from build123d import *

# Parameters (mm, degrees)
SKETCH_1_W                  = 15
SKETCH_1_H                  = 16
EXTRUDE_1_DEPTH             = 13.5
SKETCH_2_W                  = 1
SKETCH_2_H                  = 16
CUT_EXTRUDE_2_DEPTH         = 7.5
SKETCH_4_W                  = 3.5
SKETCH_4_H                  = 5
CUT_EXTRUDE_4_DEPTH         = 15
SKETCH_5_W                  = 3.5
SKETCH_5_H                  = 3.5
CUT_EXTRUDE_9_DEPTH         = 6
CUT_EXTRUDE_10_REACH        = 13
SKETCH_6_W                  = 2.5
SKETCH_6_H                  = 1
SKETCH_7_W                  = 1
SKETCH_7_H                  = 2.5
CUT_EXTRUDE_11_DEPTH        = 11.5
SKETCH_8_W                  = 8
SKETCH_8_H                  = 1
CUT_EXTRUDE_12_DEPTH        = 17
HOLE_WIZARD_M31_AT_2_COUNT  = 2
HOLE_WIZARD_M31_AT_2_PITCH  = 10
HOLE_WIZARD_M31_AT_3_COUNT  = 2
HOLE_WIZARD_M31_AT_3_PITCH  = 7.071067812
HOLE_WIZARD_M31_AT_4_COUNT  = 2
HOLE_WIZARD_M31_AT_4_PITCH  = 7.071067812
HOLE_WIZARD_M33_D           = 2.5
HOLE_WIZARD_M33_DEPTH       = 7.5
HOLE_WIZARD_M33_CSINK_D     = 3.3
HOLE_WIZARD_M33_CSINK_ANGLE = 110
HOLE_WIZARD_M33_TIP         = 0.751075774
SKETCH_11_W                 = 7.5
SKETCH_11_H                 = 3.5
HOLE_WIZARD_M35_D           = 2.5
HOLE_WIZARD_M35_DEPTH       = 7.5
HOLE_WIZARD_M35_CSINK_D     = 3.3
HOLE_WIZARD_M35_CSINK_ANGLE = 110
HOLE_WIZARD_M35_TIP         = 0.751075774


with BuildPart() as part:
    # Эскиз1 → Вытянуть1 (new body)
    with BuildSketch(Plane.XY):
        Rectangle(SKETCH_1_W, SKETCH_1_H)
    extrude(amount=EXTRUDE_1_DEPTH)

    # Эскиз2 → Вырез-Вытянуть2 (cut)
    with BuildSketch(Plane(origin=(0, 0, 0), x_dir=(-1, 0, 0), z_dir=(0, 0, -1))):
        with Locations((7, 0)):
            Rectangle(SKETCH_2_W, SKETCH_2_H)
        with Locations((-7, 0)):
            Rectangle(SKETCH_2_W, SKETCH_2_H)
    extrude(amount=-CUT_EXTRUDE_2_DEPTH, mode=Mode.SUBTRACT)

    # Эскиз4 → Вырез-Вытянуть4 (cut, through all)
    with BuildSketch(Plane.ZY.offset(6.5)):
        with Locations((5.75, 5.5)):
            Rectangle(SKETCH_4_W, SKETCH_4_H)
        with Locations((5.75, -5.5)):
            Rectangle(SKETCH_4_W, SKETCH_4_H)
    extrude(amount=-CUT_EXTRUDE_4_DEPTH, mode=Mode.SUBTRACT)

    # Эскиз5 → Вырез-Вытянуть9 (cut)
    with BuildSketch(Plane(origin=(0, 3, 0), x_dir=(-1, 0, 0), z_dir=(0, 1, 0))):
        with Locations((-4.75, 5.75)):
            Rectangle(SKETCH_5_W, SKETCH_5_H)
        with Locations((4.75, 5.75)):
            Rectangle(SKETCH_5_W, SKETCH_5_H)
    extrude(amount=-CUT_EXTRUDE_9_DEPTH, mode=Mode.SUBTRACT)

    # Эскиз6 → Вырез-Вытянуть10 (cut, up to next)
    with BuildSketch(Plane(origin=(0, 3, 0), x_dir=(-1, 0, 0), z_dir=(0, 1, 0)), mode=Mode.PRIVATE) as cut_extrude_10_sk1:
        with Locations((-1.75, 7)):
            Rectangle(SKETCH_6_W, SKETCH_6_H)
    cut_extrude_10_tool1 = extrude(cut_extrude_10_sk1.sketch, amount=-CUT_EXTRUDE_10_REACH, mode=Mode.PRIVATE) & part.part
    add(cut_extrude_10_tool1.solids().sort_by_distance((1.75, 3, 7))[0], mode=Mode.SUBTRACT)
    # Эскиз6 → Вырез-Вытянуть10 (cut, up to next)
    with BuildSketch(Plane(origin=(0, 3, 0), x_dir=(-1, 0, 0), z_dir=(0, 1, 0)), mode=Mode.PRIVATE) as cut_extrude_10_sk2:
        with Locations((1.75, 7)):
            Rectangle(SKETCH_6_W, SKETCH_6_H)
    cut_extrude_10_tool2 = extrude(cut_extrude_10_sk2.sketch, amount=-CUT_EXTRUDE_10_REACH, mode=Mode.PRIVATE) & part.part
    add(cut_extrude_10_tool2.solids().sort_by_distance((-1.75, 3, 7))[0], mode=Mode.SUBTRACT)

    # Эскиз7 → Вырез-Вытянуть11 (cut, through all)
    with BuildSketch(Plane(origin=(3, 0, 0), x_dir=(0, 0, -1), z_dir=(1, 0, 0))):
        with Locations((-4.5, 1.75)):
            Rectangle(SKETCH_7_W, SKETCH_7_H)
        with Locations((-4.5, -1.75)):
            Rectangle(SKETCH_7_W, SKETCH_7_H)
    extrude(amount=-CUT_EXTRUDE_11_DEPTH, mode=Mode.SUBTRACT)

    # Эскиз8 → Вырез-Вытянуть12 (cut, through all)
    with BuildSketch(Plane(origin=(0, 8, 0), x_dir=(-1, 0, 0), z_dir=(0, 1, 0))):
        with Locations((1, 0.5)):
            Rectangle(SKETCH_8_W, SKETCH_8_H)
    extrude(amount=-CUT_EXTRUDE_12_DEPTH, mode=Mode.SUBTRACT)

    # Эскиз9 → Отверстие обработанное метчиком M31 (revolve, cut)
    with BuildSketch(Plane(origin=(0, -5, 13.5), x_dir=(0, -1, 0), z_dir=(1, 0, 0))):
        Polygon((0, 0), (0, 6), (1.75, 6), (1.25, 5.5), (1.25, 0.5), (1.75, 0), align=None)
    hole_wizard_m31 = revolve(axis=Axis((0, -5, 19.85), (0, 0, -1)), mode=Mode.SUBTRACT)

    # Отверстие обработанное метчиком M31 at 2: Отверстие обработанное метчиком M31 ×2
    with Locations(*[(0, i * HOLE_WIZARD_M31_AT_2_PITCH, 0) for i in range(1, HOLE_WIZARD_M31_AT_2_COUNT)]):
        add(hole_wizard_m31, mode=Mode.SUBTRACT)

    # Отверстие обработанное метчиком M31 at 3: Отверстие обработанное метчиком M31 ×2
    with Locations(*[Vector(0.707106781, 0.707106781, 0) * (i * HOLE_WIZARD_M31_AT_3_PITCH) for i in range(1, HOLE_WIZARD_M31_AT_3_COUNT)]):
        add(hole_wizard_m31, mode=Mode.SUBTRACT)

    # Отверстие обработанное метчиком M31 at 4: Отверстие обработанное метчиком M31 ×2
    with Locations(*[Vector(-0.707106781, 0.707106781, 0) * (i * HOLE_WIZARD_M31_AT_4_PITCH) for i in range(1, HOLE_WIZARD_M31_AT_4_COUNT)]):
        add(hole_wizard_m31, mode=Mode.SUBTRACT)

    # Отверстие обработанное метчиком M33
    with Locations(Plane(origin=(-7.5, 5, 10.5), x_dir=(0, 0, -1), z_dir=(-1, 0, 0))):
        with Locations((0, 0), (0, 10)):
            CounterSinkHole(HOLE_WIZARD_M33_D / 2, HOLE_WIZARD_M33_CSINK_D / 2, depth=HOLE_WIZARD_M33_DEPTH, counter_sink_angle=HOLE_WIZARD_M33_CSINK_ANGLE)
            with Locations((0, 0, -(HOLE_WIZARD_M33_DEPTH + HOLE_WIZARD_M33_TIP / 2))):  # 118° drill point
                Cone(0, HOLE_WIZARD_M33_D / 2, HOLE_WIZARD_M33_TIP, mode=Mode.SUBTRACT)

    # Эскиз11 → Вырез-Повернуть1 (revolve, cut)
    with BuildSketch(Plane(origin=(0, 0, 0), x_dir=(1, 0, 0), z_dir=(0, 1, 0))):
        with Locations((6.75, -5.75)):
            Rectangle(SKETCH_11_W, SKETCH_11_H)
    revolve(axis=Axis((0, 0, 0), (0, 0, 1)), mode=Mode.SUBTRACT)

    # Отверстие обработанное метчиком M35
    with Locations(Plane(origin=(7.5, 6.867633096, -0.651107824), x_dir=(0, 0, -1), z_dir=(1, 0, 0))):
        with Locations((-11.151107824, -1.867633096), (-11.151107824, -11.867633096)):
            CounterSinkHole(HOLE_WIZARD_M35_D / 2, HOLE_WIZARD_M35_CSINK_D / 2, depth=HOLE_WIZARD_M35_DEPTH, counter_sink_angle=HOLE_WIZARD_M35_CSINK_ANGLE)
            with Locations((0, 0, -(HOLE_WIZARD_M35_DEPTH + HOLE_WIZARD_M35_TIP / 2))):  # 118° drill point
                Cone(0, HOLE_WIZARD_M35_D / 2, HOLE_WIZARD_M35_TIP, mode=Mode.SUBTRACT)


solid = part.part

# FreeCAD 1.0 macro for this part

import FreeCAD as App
import Part
import Sketcher

V = App.Vector


def add_polygon(sketch, points):
    """Adds a closed chain of lines whose ends are joined by coincident constraints."""
    first, n = sketch.GeometryCount, len(points)
    for a, b in zip(points, points[1:] + points[:1]):
        sketch.addGeometry(Part.LineSegment(App.Vector(*a, 0), App.Vector(*b, 0)), False)
    for i in range(n):
        sketch.addConstraint(Sketcher.Constraint("Coincident", first + i, 2, first + (i + 1) % n, 1))

doc = App.newDocument("Part")
body = doc.addObject("PartDesign::Body", "Body")

sketch1 = doc.addObject("Sketcher::SketchObject", "Sketch")
body.addObject(sketch1)
sketch1.AttachmentSupport = (doc.XY_Plane, [""])
sketch1.MapMode = "FlatFace"
add_polygon(sketch1, [(-8, 8), (-8, -8), (8, -8), (8, 8)])
sketch1.addConstraint(Sketcher.Constraint("Vertical", 0))
sketch1.addConstraint(Sketcher.Constraint("Horizontal", 1))
sketch1.addConstraint(Sketcher.Constraint("Vertical", 2))
sketch1.addConstraint(Sketcher.Constraint("Horizontal", 3))
sketch1.addConstraint(Sketcher.Constraint("Symmetric", 0, 2, 2, 2, -1, 1))
sketch1.addConstraint(Sketcher.Constraint("DistanceX", 1, 1, 1, 2, 15.0))
sketch1.addConstraint(Sketcher.Constraint("DistanceY", 0, 2, 0, 1, 16.0))
pad1 = doc.addObject("PartDesign::Pad", "Pad")
body.addObject(pad1)
pad1.Profile = sketch1
pad1.Length = 13.5

sketch2 = doc.addObject("Sketcher::SketchObject", "Sketch001")
body.addObject(sketch2)
sketch2.AttachmentSupport = (doc.XY_Plane, [""])
sketch2.MapMode = "FlatFace"
add_polygon(sketch2, [(-6.5, 8), (-6.5, -8), (-7.5, -8), (-7.5, 8)])
add_polygon(sketch2, [(7.5, 8), (7.5, -8), (6.5, -8), (6.5, 8)])
sketch2.addConstraint(Sketcher.Constraint("Vertical", 0))
sketch2.addConstraint(Sketcher.Constraint("Horizontal", 1))
sketch2.addConstraint(Sketcher.Constraint("Vertical", 2))
sketch2.addConstraint(Sketcher.Constraint("Horizontal", 3))
sketch2.addConstraint(Sketcher.Constraint("Vertical", 4))
sketch2.addConstraint(Sketcher.Constraint("Horizontal", 5))
sketch2.addConstraint(Sketcher.Constraint("Vertical", 6))
sketch2.addConstraint(Sketcher.Constraint("Horizontal", 7))
sketch2.addConstraint(Sketcher.Constraint("Symmetric", 2, 2, 4, 2, -1, 1))
sketch2.addConstraint(Sketcher.Constraint("Symmetric", 0, 2, 6, 2, -1, 1))
sketch2.addConstraint(Sketcher.Constraint("Horizontal", 1, 2, 4, 2))
sketch2.addConstraint(Sketcher.Constraint("DistanceX", 1, 2, 1, 1, 1.0))
sketch2.addConstraint(Sketcher.Constraint("DistanceY", 0, 2, 0, 1, 16.0))
sketch2.addConstraint(Sketcher.Constraint("DistanceX", 0, 2, 4, 2, 14.0))
pocket1 = doc.addObject("PartDesign::Pocket", "Pocket")
body.addObject(pocket1)
pocket1.Profile = sketch2
pocket1.Length = 7.5
pocket1.Reversed = True

sketch3 = doc.addObject("Sketcher::SketchObject", "Sketch002")
body.addObject(sketch3)
sketch3.AttachmentSupport = (doc.YZ_Plane, [""])
sketch3.MapMode = "FlatFace"
sketch3.AttachmentOffset = App.Placement(V(0, 0, -6.5), App.Rotation())
add_polygon(sketch3, [(8, 4), (3, 4), (3, 7.5), (8, 7.5)])
add_polygon(sketch3, [(-3, 4), (-8, 4), (-8, 7.5), (-3, 7.5)])
sketch3.addConstraint(Sketcher.Constraint("Horizontal", 0))
sketch3.addConstraint(Sketcher.Constraint("Vertical", 1))
sketch3.addConstraint(Sketcher.Constraint("Horizontal", 2))
sketch3.addConstraint(Sketcher.Constraint("Vertical", 3))
sketch3.addConstraint(Sketcher.Constraint("Horizontal", 4))
sketch3.addConstraint(Sketcher.Constraint("Vertical", 5))
sketch3.addConstraint(Sketcher.Constraint("Horizontal", 6))
sketch3.addConstraint(Sketcher.Constraint("Vertical", 7))
sketch3.addConstraint(Sketcher.Constraint("Symmetric", 3, 2, 4, 2, -2))
sketch3.addConstraint(Sketcher.Constraint("Symmetric", 1, 2, 6, 2, -2))
sketch3.addConstraint(Sketcher.Constraint("DistanceX", 0, 2, 0, 1, 5.0))
sketch3.addConstraint(Sketcher.Constraint("DistanceY", 1, 1, 1, 2, 3.5))
sketch3.addConstraint(Sketcher.Constraint("DistanceX", -1, 1, 0, 2, 3.0))
sketch3.addConstraint(Sketcher.Constraint("DistanceY", -1, 1, 0, 2, 4.0))
pocket2 = doc.addObject("PartDesign::Pocket", "Pocket001")
body.addObject(pocket2)
pocket2.Profile = sketch3
pocket2.Type = "ThroughAll"
pocket2.Reversed = True

sketch4 = doc.addObject("Sketcher::SketchObject", "Sketch003")
body.addObject(sketch4)
sketch4.AttachmentSupport = (doc.XZ_Plane, [""])
sketch4.MapMode = "FlatFace"
sketch4.AttachmentOffset = App.Placement(V(0, 0, -3), App.Rotation())
add_polygon(sketch4, [(6.5, 7.5), (6.5, 4), (3, 4), (3, 7.5)])
add_polygon(sketch4, [(-3, 7.5), (-3, 4), (-6.5, 4), (-6.5, 7.5)])
sketch4.addConstraint(Sketcher.Constraint("Vertical", 0))
sketch4.addConstraint(Sketcher.Constraint("Horizontal", 1))
sketch4.addConstraint(Sketcher.Constraint("Vertical", 2))
sketch4.addConstraint(Sketcher.Constraint("Horizontal", 3))
sketch4.addConstraint(Sketcher.Constraint("Vertical", 4))
sketch4.addConstraint(Sketcher.Constraint("Horizontal", 5))
sketch4.addConstraint(Sketcher.Constraint("Vertical", 6))
sketch4.addConstraint(Sketcher.Constraint("Horizontal", 7))
sketch4.addConstraint(Sketcher.Constraint("Symmetric", 1, 2, 4, 2, -2))
sketch4.addConstraint(Sketcher.Constraint("Symmetric", 3, 2, 6, 2, -2))
sketch4.addConstraint(Sketcher.Constraint("Equal", 7, 0))
sketch4.addConstraint(Sketcher.Constraint("DistanceX", 1, 2, 1, 1, 3.5))
sketch4.addConstraint(Sketcher.Constraint("DistanceY", -1, 1, 0, 2, 4.0))
sketch4.addConstraint(Sketcher.Constraint("DistanceX", -1, 1, 1, 2, 3.0))
pocket3 = doc.addObject("PartDesign::Pocket", "Pocket002")
body.addObject(pocket3)
pocket3.Profile = sketch4
pocket3.Length = 6
pocket3.Reversed = True

sketch5 = doc.addObject("Sketcher::SketchObject", "Sketch004")
body.addObject(sketch5)
sketch5.AttachmentSupport = (doc.XZ_Plane, [""])
sketch5.MapMode = "FlatFace"
sketch5.AttachmentOffset = App.Placement(V(0, 0, -3), App.Rotation())
add_polygon(sketch5, [(3, 7.5), (3, 6.5), (0.5, 6.5), (0.5, 7.5)])
sketch5.addConstraint(Sketcher.Constraint("Vertical", 0))
sketch5.addConstraint(Sketcher.Constraint("Horizontal", 1))
sketch5.addConstraint(Sketcher.Constraint("Vertical", 2))
sketch5.addConstraint(Sketcher.Constraint("Horizontal", 3))
sketch5.addConstraint(Sketcher.Constraint("DistanceY", 0, 2, 0, 1, 1.0))
sketch5.addConstraint(Sketcher.Constraint("DistanceX", 1, 2, 1, 1, 2.5))
sketch5.addConstraint(Sketcher.Constraint("DistanceX", -1, 1, 0, 2, 3.0))
sketch5.addConstraint(Sketcher.Constraint("DistanceY", -1, 1, 0, 2, 6.5))
pocket4 = doc.addObject("PartDesign::Pocket", "Pocket003")
body.addObject(pocket4)
pocket4.Profile = sketch5
pocket4.Type = "UpToFirst"
pocket4.Reversed = True

sketch6 = doc.addObject("Sketcher::SketchObject", "Sketch005")
body.addObject(sketch6)
sketch6.AttachmentSupport = (doc.XZ_Plane, [""])
sketch6.MapMode = "FlatFace"
sketch6.AttachmentOffset = App.Placement(V(0, 0, -3), App.Rotation())
add_polygon(sketch6, [(-0.5, 7.5), (-0.5, 6.5), (-3, 6.5), (-3, 7.5)])
sketch6.addConstraint(Sketcher.Constraint("Vertical", 0))
sketch6.addConstraint(Sketcher.Constraint("Horizontal", 1))
sketch6.addConstraint(Sketcher.Constraint("Vertical", 2))
sketch6.addConstraint(Sketcher.Constraint("Horizontal", 3))
sketch6.addConstraint(Sketcher.Constraint("DistanceY", 0, 2, 0, 1, 1.0))
sketch6.addConstraint(Sketcher.Constraint("DistanceX", 1, 2, 1, 1, 2.5))
sketch6.addConstraint(Sketcher.Constraint("DistanceX", 1, 2, -1, 1, 3.0))
sketch6.addConstraint(Sketcher.Constraint("DistanceY", -1, 1, 0, 2, 6.5))
pocket5 = doc.addObject("PartDesign::Pocket", "Pocket004")
body.addObject(pocket5)
pocket5.Profile = sketch6
pocket5.Type = "UpToFirst"
pocket5.Reversed = True

sketch7 = doc.addObject("Sketcher::SketchObject", "Sketch006")
body.addObject(sketch7)
sketch7.AttachmentSupport = (doc.YZ_Plane, [""])
sketch7.MapMode = "FlatFace"
sketch7.AttachmentOffset = App.Placement(V(0, 0, 3), App.Rotation())
add_polygon(sketch7, [(3, 5), (0.5, 5), (0.5, 4), (3, 4)])
add_polygon(sketch7, [(-0.5, 5), (-3, 5), (-3, 4), (-0.5, 4)])
sketch7.addConstraint(Sketcher.Constraint("Horizontal", 0))
sketch7.addConstraint(Sketcher.Constraint("Vertical", 1))
sketch7.addConstraint(Sketcher.Constraint("Horizontal", 2))
sketch7.addConstraint(Sketcher.Constraint("Vertical", 3))
sketch7.addConstraint(Sketcher.Constraint("Horizontal", 4))
sketch7.addConstraint(Sketcher.Constraint("Vertical", 5))
sketch7.addConstraint(Sketcher.Constraint("Horizontal", 6))
sketch7.addConstraint(Sketcher.Constraint("Vertical", 7))
sketch7.addConstraint(Sketcher.Constraint("Symmetric", 3, 2, 4, 2, -2))
sketch7.addConstraint(Sketcher.Constraint("Symmetric", 1, 2, 6, 2, -2))
sketch7.addConstraint(Sketcher.Constraint("DistanceY", 1, 2, 1, 1, 1.0))
sketch7.addConstraint(Sketcher.Constraint("DistanceX", 0, 2, 0, 1, 2.5))
sketch7.addConstraint(Sketcher.Constraint("DistanceY", -1, 1, 0, 2, 5.0))
sketch7.addConstraint(Sketcher.Constraint("DistanceX", -1, 1, 2, 2, 3.0))
pocket6 = doc.addObject("PartDesign::Pocket", "Pocket005")
body.addObject(pocket6)
pocket6.Profile = sketch7
pocket6.Type = "ThroughAll"

sketch8 = doc.addObject("Sketcher::SketchObject", "Sketch007")
body.addObject(sketch8)
sketch8.AttachmentSupport = (doc.XZ_Plane, [""])
sketch8.MapMode = "FlatFace"
sketch8.AttachmentOffset = App.Placement(V(0, 0, -8), App.Rotation())
add_polygon(sketch8, [(3, 1), (3, 0), (-5, 0), (-5, 1)])
sketch8.addConstraint(Sketcher.Constraint("Vertical", 0))
sketch8.addConstraint(Sketcher.Constraint("Horizontal", 1))
sketch8.addConstraint(Sketcher.Constraint("Vertical", 2))
sketch8.addConstraint(Sketcher.Constraint("Horizontal", 3))
sketch8.addConstraint(Sketcher.Constraint("PointOnObject", 0, 2, -1))
sketch8.addConstraint(Sketcher.Constraint("DistanceX", 1, 2, 1, 1, 8.0))
sketch8.addConstraint(Sketcher.Constraint("DistanceY", 0, 2, 0, 1, 1.0))
sketch8.addConstraint(Sketcher.Constraint("DistanceX", -1, 1, 0, 2, 3.0))
pocket7 = doc.addObject("PartDesign::Pocket", "Pocket006")
body.addObject(pocket7)
pocket7.Profile = sketch8
pocket7.Type = "ThroughAll"
pocket7.Reversed = True

sketch9 = doc.addObject("Sketcher::SketchObject", "Sketch008")
body.addObject(sketch9)
sketch9.AttachmentSupport = (doc.YZ_Plane, [""])
sketch9.MapMode = "FlatFace"
add_polygon(sketch9, [(-5, 7.5), (-5, 13.5), (-6.8, 13.5), (-6.2, 13), (-6.2, 8), (-6.8, 7.5)])
sketch9.addGeometry(Part.LineSegment(V(-5, 13.5, 0), V(-5, 7.5, 0)), True)
sketch9.addConstraint(Sketcher.Constraint("Vertical", 0))
sketch9.addConstraint(Sketcher.Constraint("Horizontal", 1))
sketch9.addConstraint(Sketcher.Constraint("Vertical", 3))
sketch9.addConstraint(Sketcher.Constraint("Horizontal", 5))
sketch9.addConstraint(Sketcher.Constraint("Vertical", 6))
sketch9.addConstraint(Sketcher.Constraint("Coincident", 6, 1, 0, 2))
sketch9.addConstraint(Sketcher.Constraint("Perpendicular", 2, 4))
sketch9.addConstraint(Sketcher.Constraint("Horizontal", 4, 2, 6, 2))
sketch9.addConstraint(Sketcher.Constraint("Vertical", 1, 2, 4, 2))
sketch9.addConstraint(Sketcher.Constraint("Equal", 2, 4))
sketch9.addConstraint(Sketcher.Constraint("DistanceY", 0, 1, 0, 2, 6.0))
sketch9.addConstraint(Sketcher.Constraint("DistanceY", 3, 2, 3, 1, 5.0))
sketch9.addConstraint(Sketcher.Constraint("DistanceX", 0, 2, -1, 1, 5.0))
sketch9.addConstraint(Sketcher.Constraint("DistanceY", -1, 1, 2, 2, 13.0))
sketch9.addConstraint(Sketcher.Constraint("DistanceX", 1, 2, 1, 1, 1.75))
groove = doc.addObject("PartDesign::Groove", "Groove")
body.addObject(groove)
groove.Profile = sketch9
groove.ReferenceAxis = (sketch9, ["Axis0"])
groove.Angle = 360
doc.recompute()

linearpattern = doc.addObject("PartDesign::LinearPattern", "LinearPattern")
body.addObject(linearpattern)
linearpattern.Originals = [groove]
linearpattern.Direction = (doc.Y_Axis, [""])
linearpattern.Mode = "offset"
linearpattern.Offset = 10
linearpattern.Occurrences = 2
body.Tip = linearpattern
doc.recompute()

datumline = doc.addObject("PartDesign::Line", "DatumLine")
body.addObject(datumline)
datumline.Placement = App.Placement(V(0, 0, 0), App.Rotation(V(0, 0, 1), V(0.707106781, 0.707106781, 0)))
linearpattern2 = doc.addObject("PartDesign::LinearPattern", "LinearPattern001")
body.addObject(linearpattern2)
linearpattern2.Originals = [groove]
linearpattern2.Direction = (datumline, [""])
linearpattern2.Mode = "offset"
linearpattern2.Offset = 7.071068
linearpattern2.Occurrences = 2
body.Tip = linearpattern2
doc.recompute()

datumline2 = doc.addObject("PartDesign::Line", "DatumLine001")
body.addObject(datumline2)
datumline2.Placement = App.Placement(V(0, 0, 0), App.Rotation(V(0, 0, 1), V(-0.707106781, 0.707106781, 0)))
linearpattern3 = doc.addObject("PartDesign::LinearPattern", "LinearPattern002")
body.addObject(linearpattern3)
linearpattern3.Originals = [groove]
linearpattern3.Direction = (datumline2, [""])
linearpattern3.Mode = "offset"
linearpattern3.Offset = 7.071068
linearpattern3.Occurrences = 2
body.Tip = linearpattern3

sketch10 = doc.addObject("Sketcher::SketchObject", "Sketch009")
body.addObject(sketch10)
sketch10.AttachmentSupport = (doc.YZ_Plane, [""])
sketch10.MapMode = "FlatFace"
sketch10.AttachmentOffset = App.Placement(V(0, 0, -7.5), App.Rotation())
sketch10.addGeometry(Part.Circle(V(5, 10.5, 0), V(0, 0, 1), 1.2), False)
sketch10.addGeometry(Part.Circle(V(-5, 10.5, 0), V(0, 0, 1), 1.2), False)
sketch10.addConstraint(Sketcher.Constraint("Equal", 0, 1))
sketch10.addConstraint(Sketcher.Constraint("Symmetric", 0, 3, 1, 3, -2))
sketch10.addConstraint(Sketcher.Constraint("Diameter", 0, 2.5))
sketch10.addConstraint(Sketcher.Constraint("DistanceX", -1, 1, 0, 3, 5.0))
sketch10.addConstraint(Sketcher.Constraint("DistanceY", -1, 1, 0, 3, 10.5))
doc.recompute()
hole = doc.addObject("PartDesign::Hole", "Hole")
body.addObject(hole)
hole.Profile = sketch10
hole.ThreadType = "None"
hole.Diameter = 2.5
hole.DepthType = "Dimension"
hole.Depth = 7.5
hole.DrillPoint = "Angled"
hole.DrillPointAngle = 118
hole.HoleCutType = "Countersink"
hole.HoleCutDiameter = 3.3
hole.HoleCutCountersinkAngle = 110
hole.Reversed = True

sketch11 = doc.addObject("Sketcher::SketchObject", "Sketch010")
body.addObject(sketch11)
sketch11.AttachmentSupport = (doc.XZ_Plane, [""])
sketch11.MapMode = "FlatFace"
add_polygon(sketch11, [(3, 4), (3, 7.5), (10.5, 7.5), (10.5, 4)])
sketch11.addConstraint(Sketcher.Constraint("Vertical", 0))
sketch11.addConstraint(Sketcher.Constraint("Horizontal", 1))
sketch11.addConstraint(Sketcher.Constraint("Vertical", 2))
sketch11.addConstraint(Sketcher.Constraint("Horizontal", 3))
sketch11.addConstraint(Sketcher.Constraint("DistanceX", 1, 1, 1, 2, 7.5))
sketch11.addConstraint(Sketcher.Constraint("DistanceY", 0, 1, 0, 2, 3.5))
sketch11.addConstraint(Sketcher.Constraint("DistanceX", -1, 1, 0, 2, 3.0))
sketch11.addConstraint(Sketcher.Constraint("DistanceY", -1, 1, 2, 2, 4.0))
groove2 = doc.addObject("PartDesign::Groove", "Groove001")
body.addObject(groove2)
groove2.Profile = sketch11
groove2.ReferenceAxis = (sketch11, ["V_Axis"])
groove2.Angle = 360

sketch12 = doc.addObject("Sketcher::SketchObject", "Sketch011")
body.addObject(sketch12)
sketch12.AttachmentSupport = (doc.YZ_Plane, [""])
sketch12.MapMode = "FlatFace"
sketch12.AttachmentOffset = App.Placement(V(0, 0, 7.5), App.Rotation())
sketch12.addGeometry(Part.Circle(V(5, 10.5, 0), V(0, 0, 1), 1.2), False)
sketch12.addGeometry(Part.Circle(V(-5, 10.5, 0), V(0, 0, 1), 1.2), False)
sketch12.addConstraint(Sketcher.Constraint("Equal", 0, 1))
sketch12.addConstraint(Sketcher.Constraint("Symmetric", 0, 3, 1, 3, -2))
sketch12.addConstraint(Sketcher.Constraint("Diameter", 0, 2.5))
sketch12.addConstraint(Sketcher.Constraint("DistanceX", -1, 1, 0, 3, 5.0))
sketch12.addConstraint(Sketcher.Constraint("DistanceY", -1, 1, 0, 3, 10.5))
doc.recompute()
hole2 = doc.addObject("PartDesign::Hole", "Hole001")
body.addObject(hole2)
hole2.Profile = sketch12
hole2.ThreadType = "None"
hole2.Diameter = 2.5
hole2.DepthType = "Dimension"
hole2.Depth = 7.5
hole2.DrillPoint = "Angled"
hole2.DrillPointAngle = 118
hole2.HoleCutType = "Countersink"
hole2.HoleCutDiameter = 3.3
hole2.HoleCutCountersinkAngle = 110

doc.recompute()
